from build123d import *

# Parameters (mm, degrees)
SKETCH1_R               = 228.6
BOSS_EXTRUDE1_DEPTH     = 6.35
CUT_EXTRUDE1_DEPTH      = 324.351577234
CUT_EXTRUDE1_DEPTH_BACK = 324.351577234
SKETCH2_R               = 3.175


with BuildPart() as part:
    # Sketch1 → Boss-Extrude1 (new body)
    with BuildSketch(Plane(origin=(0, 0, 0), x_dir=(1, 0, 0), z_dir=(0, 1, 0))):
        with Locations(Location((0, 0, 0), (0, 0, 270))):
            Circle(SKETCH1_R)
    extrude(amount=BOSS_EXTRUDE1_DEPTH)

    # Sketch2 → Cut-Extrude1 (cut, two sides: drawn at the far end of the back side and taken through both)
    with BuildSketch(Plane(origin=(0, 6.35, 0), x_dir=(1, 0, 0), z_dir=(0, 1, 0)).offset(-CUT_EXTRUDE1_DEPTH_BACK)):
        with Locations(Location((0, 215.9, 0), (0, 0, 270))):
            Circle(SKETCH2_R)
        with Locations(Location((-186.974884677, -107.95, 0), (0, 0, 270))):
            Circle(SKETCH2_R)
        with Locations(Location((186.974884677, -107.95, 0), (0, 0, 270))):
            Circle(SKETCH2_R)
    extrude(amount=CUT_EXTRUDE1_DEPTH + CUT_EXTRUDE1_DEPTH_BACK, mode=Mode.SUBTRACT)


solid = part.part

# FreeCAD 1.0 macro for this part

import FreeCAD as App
import Part
import Sketcher
Q = App.Units.Quantity

doc = App.newDocument("Part")
params = doc.addObject("Spreadsheet::Sheet", "Params")
for row, (alias, value) in enumerate([
    ("sketch1_diameter", "18 in"),
    ("pad1_length", "0.25 in"),
    ("sketch2_diameter", "0.25 in"),
], start=1):
    params.set(f"A{row}", alias)
    params.set(f"B{row}", "=" + value)
    params.setAlias(f"B{row}", alias)

body = doc.addObject("PartDesign::Body", "Body")

# Sketch on XZ plane
sketch1 = body.newObject("Sketcher::SketchObject", "Sketch")
sketch1.AttachmentSupport = (doc.getObject("XZ_Plane"), [""])
sketch1.MapMode = "FlatFace"
sketch1.addGeometry(Part.Circle(App.Vector(0, 0, 0), App.Vector(0, 0, 1), 228.6), False)
sketch1.addConstraint(Sketcher.Constraint("Coincident", 0, 3, -1, 1))
sketch1.addConstraint(Sketcher.Constraint("Diameter", 0, Q("18 in")))
sketch1.setExpression("Constraints[1]", "Params.sketch1_diameter")
pad1 = body.newObject("PartDesign::Pad", "Pad")
pad1.Profile = sketch1
pad1.setExpression("Length", "Params.pad1_length")
pad1.Reversed = True

# Sketch on XZ plane
sketch2 = body.newObject("Sketcher::SketchObject", "Sketch001")
sketch2.AttachmentSupport = (doc.getObject("XZ_Plane"), [""])
sketch2.MapMode = "FlatFace"
sketch2.AttachmentOffset = App.Placement(App.Vector(0, 0, -0.25 * 25.4), App.Rotation())
sketch2.addGeometry(Part.Circle(App.Vector(0, -215.9, 0), App.Vector(0, 0, 1), 3.175), False)
sketch2.addGeometry(Part.Circle(App.Vector(-186.974885, 107.95, 0), App.Vector(0, 0, 1), 3.175), False)
sketch2.addGeometry(Part.Circle(App.Vector(186.974885, 107.95, 0), App.Vector(0, 0, 1), 3.175), False)
sketch2.addConstraint(Sketcher.Constraint("Equal", 0, 1))
sketch2.addConstraint(Sketcher.Constraint("Equal", 1, 2))
sketch2.addConstraint(Sketcher.Constraint("Symmetric", 1, 3, 2, 3, -2))
sketch2.addConstraint(Sketcher.Constraint("PointOnObject", 0, 3, -2))
sketch2.addConstraint(Sketcher.Constraint("Diameter", 0, Q("0.25 in")))
sketch2.addConstraint(Sketcher.Constraint("DistanceY", 0, 3, -1, 1, Q("8.5 in")))
sketch2.addConstraint(Sketcher.Constraint("DistanceY", -1, 1, 1, 3, Q("4.25 in")))
sketch2.addConstraint(Sketcher.Constraint("DistanceX", 1, 3, 2, 3, 373.949769))
sketch2.setExpression("Constraints[4]", "Params.sketch2_diameter")
pocket1 = body.newObject("PartDesign::Pocket", "Pocket")
pocket1.Profile = sketch2
pocket1.Type = "ThroughAll"
pocket1.Midplane = True

doc.recompute()
